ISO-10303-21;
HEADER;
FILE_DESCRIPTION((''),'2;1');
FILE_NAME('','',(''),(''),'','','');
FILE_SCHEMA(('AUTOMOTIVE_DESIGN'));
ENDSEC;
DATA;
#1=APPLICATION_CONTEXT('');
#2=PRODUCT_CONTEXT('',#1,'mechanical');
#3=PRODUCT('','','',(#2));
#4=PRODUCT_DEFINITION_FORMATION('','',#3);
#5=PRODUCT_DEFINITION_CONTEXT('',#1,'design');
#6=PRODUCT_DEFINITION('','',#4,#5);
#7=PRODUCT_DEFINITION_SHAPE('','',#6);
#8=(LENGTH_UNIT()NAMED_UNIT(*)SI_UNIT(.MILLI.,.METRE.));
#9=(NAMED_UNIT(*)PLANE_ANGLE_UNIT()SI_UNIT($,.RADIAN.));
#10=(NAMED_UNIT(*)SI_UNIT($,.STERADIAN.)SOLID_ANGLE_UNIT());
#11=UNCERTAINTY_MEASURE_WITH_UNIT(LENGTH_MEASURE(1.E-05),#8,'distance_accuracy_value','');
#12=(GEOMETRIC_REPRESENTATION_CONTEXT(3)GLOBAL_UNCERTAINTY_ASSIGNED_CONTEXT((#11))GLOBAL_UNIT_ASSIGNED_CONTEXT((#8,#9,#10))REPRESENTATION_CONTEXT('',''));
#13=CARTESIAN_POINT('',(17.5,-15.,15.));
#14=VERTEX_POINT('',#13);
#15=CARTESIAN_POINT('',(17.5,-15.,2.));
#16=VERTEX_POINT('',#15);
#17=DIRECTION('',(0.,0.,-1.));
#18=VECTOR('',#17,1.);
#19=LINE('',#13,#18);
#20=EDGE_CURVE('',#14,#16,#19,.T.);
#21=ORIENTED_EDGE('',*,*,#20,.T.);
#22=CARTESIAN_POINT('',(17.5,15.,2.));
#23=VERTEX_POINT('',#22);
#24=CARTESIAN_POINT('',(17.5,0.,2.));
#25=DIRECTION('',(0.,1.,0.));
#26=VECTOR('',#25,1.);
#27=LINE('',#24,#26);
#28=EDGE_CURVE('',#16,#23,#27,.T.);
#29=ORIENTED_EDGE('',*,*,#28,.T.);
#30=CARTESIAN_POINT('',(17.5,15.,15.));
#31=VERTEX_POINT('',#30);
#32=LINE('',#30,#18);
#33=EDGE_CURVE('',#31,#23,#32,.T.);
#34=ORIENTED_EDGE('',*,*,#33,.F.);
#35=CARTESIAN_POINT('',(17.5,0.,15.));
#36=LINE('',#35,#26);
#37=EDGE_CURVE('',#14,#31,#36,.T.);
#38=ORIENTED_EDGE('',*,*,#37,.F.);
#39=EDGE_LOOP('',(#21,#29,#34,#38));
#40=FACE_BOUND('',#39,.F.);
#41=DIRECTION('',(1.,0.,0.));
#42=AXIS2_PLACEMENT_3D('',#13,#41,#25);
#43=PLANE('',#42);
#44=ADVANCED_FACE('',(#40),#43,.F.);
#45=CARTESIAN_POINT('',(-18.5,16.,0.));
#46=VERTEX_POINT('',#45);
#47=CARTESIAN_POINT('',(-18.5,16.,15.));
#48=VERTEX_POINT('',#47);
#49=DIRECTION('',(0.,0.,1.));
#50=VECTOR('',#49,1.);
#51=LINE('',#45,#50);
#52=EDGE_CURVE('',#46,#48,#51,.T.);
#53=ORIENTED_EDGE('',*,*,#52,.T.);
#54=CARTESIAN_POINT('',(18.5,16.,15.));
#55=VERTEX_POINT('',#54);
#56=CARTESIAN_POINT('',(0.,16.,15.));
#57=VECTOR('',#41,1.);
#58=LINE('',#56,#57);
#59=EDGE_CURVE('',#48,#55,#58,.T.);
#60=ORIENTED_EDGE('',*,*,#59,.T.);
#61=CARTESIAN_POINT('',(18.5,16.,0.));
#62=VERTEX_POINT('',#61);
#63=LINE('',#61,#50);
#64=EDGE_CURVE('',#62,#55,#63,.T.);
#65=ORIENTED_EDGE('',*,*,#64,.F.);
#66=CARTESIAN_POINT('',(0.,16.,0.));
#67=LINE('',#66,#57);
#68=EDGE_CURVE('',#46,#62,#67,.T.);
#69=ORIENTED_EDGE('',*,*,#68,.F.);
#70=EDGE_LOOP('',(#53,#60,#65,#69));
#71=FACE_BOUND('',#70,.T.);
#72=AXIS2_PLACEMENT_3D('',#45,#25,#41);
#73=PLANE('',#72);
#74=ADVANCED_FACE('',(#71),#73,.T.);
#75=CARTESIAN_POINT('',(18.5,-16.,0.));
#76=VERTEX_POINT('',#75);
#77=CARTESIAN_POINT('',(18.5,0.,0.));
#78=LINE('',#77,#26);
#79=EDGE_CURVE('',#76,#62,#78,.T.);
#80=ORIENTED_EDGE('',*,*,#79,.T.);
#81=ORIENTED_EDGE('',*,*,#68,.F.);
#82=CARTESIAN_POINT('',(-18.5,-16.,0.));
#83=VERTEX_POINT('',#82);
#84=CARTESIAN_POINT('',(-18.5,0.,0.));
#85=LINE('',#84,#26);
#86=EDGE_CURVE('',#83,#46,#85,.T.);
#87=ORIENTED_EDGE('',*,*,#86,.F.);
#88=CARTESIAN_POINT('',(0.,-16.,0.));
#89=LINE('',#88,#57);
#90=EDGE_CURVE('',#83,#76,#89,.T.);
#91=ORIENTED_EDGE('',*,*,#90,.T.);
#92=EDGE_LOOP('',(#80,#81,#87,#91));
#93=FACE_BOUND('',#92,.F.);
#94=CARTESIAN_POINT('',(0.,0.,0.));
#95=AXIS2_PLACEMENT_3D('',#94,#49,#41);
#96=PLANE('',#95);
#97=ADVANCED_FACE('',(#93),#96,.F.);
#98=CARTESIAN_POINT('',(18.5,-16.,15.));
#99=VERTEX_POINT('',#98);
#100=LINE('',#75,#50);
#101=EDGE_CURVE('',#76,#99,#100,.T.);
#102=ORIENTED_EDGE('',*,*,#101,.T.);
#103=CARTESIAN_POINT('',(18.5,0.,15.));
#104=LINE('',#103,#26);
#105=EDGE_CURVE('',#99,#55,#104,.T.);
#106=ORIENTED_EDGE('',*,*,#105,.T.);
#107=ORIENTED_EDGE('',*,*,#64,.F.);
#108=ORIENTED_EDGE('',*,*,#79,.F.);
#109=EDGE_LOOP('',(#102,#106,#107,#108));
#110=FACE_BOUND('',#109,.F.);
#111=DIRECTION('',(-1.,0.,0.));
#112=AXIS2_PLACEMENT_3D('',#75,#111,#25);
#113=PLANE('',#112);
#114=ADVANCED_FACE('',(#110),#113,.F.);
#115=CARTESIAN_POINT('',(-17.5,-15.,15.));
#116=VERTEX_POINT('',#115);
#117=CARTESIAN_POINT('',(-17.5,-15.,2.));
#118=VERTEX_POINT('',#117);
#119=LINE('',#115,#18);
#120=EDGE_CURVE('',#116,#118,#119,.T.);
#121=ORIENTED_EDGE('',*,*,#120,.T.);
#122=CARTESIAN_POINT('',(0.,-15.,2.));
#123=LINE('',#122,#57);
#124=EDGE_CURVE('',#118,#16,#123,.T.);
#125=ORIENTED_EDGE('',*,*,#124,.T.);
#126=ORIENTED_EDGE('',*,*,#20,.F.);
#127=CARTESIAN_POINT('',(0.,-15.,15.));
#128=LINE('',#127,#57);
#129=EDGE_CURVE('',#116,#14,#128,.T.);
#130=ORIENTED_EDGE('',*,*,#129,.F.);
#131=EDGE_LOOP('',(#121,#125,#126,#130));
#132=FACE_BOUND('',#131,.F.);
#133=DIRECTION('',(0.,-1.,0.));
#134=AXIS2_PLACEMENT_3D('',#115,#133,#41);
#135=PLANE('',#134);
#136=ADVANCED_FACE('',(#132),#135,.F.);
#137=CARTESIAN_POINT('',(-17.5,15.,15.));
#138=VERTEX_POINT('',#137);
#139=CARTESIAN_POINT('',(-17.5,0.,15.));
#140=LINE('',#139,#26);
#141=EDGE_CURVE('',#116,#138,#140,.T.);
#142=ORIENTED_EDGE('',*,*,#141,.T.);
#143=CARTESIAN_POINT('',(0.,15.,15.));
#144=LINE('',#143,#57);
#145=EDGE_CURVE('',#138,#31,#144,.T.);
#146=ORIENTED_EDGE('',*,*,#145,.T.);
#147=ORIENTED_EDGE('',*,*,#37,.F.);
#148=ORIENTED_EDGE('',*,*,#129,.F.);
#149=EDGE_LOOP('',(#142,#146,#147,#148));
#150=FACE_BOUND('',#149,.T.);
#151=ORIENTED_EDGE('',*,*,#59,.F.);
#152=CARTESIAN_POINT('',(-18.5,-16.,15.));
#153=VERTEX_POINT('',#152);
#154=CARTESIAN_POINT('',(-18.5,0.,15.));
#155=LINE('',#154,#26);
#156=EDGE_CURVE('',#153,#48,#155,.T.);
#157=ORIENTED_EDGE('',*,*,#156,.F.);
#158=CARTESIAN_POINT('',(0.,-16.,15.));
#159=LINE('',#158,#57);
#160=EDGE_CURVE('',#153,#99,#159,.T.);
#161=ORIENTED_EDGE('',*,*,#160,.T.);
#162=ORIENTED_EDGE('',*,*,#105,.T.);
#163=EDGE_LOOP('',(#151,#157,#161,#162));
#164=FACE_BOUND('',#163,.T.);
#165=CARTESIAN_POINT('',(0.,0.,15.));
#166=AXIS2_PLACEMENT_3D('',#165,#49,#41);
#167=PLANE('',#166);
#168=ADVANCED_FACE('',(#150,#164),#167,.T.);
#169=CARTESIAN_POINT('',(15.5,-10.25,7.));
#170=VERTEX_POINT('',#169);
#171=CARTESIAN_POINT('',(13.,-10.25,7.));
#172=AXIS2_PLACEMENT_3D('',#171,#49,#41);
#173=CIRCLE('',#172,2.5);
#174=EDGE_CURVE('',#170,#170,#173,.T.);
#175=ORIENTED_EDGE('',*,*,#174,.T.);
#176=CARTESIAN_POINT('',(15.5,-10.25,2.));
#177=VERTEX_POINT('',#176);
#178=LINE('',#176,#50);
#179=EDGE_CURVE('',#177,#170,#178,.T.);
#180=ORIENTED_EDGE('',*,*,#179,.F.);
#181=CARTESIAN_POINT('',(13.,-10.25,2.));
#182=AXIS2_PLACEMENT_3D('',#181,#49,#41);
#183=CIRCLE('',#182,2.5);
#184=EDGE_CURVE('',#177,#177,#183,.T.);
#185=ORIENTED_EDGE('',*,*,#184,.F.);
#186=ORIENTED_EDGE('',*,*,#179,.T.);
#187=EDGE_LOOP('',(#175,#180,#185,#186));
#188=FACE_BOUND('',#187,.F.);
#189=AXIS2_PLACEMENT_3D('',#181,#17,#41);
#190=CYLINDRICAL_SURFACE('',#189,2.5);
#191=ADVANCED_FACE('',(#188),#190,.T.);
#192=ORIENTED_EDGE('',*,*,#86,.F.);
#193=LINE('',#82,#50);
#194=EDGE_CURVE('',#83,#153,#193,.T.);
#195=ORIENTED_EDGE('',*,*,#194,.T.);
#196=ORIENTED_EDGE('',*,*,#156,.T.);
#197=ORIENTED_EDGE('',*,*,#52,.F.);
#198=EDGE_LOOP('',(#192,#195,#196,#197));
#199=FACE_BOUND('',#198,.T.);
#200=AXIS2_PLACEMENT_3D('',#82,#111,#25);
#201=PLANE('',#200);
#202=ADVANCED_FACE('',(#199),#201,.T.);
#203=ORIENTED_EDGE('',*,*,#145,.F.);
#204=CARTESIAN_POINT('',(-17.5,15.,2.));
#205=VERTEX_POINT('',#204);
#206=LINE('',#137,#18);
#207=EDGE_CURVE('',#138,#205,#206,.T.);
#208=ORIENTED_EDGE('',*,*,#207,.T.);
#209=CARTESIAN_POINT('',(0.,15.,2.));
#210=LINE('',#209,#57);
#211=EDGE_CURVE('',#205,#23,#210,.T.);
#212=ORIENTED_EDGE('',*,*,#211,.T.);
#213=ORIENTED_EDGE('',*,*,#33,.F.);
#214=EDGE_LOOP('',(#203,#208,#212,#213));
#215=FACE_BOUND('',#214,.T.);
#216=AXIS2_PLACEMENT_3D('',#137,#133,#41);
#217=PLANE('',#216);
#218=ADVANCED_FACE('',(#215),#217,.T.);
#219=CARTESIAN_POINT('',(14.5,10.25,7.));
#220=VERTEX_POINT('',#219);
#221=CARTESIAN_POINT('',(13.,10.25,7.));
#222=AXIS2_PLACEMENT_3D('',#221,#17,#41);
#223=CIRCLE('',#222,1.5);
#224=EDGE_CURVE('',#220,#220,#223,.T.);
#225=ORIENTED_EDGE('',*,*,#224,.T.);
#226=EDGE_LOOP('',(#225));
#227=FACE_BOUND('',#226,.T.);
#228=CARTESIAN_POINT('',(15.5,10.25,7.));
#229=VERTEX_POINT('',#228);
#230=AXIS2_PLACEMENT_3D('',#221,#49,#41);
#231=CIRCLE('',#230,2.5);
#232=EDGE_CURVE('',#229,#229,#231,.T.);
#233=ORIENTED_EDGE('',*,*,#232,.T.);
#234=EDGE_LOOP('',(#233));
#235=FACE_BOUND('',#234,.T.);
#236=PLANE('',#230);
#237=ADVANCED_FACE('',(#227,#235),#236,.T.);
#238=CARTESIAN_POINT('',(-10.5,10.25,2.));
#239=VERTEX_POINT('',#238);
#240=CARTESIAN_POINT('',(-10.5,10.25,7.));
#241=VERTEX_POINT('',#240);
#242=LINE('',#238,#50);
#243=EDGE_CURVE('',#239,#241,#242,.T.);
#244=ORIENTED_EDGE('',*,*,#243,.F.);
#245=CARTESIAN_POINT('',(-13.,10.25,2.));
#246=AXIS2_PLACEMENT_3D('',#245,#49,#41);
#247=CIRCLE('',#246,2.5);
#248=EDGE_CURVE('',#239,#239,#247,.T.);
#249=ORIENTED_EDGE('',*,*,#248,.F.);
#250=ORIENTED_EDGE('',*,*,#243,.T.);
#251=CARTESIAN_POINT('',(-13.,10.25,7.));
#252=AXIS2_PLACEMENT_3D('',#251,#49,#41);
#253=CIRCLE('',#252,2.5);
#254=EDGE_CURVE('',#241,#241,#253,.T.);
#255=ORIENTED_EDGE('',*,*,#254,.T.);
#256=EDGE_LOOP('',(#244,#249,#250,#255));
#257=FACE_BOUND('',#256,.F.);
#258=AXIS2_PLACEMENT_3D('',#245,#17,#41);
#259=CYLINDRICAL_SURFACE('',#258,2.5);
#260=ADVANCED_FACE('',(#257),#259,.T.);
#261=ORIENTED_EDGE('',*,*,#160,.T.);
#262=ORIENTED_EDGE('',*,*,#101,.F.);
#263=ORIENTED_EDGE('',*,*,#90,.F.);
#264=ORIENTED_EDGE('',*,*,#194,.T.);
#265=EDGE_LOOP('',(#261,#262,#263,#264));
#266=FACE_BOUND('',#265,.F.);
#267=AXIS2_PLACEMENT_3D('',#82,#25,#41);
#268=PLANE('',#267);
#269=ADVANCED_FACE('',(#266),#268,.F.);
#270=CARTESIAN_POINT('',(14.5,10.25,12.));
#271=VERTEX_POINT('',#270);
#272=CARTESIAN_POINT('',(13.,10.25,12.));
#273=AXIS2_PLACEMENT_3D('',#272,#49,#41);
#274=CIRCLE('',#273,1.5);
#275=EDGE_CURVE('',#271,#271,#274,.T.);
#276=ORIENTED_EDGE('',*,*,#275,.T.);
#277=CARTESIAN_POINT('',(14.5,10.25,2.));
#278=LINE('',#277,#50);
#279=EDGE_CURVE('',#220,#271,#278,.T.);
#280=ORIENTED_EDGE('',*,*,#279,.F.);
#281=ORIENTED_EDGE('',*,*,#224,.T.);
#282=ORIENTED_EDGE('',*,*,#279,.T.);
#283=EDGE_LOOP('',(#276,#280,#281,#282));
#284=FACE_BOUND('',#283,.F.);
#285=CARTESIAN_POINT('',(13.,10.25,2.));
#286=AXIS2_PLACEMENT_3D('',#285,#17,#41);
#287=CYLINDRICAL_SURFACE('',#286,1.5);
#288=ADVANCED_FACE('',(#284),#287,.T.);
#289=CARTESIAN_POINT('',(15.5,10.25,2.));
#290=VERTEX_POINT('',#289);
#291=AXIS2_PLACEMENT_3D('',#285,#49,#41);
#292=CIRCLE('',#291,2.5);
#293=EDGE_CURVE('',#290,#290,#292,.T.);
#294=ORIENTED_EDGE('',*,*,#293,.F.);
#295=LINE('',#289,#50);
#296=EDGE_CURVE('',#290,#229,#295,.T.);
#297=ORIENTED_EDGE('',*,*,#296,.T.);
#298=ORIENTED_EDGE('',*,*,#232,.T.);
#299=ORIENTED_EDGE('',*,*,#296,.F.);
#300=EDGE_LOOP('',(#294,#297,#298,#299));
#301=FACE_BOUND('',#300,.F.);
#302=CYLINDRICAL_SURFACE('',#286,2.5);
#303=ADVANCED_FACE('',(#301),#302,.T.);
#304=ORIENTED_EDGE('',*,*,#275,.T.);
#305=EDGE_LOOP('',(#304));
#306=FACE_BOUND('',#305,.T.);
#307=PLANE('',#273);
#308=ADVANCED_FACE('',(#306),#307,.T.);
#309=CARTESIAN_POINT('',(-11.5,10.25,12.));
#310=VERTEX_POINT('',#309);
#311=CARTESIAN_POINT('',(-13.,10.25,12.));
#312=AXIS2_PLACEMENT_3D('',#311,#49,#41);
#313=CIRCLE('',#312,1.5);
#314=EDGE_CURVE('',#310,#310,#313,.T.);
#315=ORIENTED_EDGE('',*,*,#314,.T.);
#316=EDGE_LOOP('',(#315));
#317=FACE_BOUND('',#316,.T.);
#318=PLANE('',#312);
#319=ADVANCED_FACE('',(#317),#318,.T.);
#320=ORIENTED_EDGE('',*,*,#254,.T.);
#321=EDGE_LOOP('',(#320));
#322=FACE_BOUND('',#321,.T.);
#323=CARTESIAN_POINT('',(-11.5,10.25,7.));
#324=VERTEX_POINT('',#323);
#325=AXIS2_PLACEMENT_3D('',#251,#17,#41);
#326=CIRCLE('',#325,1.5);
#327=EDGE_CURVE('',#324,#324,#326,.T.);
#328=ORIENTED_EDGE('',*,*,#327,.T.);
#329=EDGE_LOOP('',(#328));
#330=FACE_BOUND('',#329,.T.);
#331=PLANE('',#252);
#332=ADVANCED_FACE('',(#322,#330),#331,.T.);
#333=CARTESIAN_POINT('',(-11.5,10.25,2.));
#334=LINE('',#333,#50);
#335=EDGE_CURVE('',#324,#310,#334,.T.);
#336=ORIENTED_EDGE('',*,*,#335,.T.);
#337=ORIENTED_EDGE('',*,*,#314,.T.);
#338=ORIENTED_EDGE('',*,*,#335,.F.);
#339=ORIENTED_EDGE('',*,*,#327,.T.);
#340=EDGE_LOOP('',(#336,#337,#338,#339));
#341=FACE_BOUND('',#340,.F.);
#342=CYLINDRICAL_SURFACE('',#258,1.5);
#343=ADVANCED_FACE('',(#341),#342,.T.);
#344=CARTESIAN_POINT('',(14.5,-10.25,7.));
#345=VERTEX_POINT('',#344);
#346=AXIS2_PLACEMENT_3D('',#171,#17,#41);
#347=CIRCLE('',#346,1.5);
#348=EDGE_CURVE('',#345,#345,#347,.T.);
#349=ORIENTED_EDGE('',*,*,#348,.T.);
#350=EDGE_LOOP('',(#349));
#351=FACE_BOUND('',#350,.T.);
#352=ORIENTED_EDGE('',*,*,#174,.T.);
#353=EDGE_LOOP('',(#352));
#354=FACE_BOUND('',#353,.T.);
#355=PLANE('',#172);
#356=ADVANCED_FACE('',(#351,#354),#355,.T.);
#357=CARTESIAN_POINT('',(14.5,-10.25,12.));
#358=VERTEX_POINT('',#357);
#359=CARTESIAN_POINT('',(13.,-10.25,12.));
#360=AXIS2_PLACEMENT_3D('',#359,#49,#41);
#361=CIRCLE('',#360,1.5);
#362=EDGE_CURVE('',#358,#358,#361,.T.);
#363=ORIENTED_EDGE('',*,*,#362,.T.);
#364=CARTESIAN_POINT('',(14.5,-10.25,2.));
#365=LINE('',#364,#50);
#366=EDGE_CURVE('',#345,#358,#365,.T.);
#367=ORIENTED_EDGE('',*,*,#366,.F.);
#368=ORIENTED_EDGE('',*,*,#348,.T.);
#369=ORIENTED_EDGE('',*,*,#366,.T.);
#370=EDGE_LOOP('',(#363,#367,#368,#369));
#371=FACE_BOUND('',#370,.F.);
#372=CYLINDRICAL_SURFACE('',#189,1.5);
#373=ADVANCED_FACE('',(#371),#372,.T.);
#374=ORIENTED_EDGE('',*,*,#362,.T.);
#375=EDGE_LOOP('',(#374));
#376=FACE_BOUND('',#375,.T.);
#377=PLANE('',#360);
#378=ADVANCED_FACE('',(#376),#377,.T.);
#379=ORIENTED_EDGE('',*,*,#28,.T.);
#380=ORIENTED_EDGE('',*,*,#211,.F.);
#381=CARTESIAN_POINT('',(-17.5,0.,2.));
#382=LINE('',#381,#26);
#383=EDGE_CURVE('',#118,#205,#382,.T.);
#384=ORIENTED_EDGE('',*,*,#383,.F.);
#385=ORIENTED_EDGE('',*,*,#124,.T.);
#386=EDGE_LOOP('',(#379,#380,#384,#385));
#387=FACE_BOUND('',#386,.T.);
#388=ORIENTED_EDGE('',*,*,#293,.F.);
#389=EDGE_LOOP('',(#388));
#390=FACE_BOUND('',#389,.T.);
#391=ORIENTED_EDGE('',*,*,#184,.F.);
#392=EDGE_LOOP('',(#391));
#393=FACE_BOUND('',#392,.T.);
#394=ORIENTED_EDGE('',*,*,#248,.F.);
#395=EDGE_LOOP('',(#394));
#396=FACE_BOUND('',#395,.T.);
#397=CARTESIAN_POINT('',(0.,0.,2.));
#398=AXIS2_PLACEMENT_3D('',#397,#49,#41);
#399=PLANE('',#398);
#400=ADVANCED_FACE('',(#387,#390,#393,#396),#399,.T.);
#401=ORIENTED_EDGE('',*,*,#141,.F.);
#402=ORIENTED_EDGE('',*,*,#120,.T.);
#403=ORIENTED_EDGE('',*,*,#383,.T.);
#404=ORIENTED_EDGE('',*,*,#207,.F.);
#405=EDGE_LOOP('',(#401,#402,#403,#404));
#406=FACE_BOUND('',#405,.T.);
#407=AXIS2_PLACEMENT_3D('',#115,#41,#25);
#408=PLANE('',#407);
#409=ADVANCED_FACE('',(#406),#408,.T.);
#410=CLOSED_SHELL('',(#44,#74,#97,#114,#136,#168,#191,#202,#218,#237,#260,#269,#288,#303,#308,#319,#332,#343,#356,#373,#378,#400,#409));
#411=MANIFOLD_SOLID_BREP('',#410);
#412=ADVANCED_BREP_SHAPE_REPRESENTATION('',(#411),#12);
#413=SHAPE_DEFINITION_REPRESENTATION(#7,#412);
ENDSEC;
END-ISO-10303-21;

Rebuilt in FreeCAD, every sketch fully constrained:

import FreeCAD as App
import Part
import Sketcher

V = App.Vector
Q = App.Units.Quantity


def add_polygon(sketch, points):
    """Adds a closed chain of lines whose ends are joined by coincident constraints."""
    first, n = sketch.GeometryCount, len(points)
    for a, b in zip(points, points[1:] + points[:1]):
        sketch.addGeometry(Part.LineSegment(App.Vector(*a, 0), App.Vector(*b, 0)), False)
    for i in range(n):
        sketch.addConstraint(Sketcher.Constraint("Coincident", first + i, 2, first + (i + 1) % n, 1))

doc = App.newDocument("Part")
params = doc.addObject("Spreadsheet::Sheet", "Params")
for row, (alias, value) in enumerate([
    ("sketch1_width", "37 mm"),
    ("sketch1_height", "32 mm"),
    ("pad1_length", "15 mm"),
    ("sketch2_width", "35 mm"),
    ("sketch2_height", "30 mm"),
    ("pocket1_length", "13 mm"),
    ("sketch3_diameter", "5 mm"),
    ("pad2_length", "5 mm"),
    ("sketch4_diameter", "3 mm"),
    ("pad3_length", "10 mm"),
], start=1):
    params.set(f"A{row}", alias)
    params.set(f"B{row}", "=" + value)
    params.setAlias(f"B{row}", alias)

body = doc.addObject("PartDesign::Body", "Body")

# Sketch on XY plane
sketch1 = body.newObject("Sketcher::SketchObject", "Sketch")
sketch1.AttachmentSupport = (doc.getObject("XY_Plane"), [""])
sketch1.MapMode = "FlatFace"
add_polygon(sketch1, [(-18, 16), (-18, -16), (18, -16), (18, 16)])  # lines 0-3
sketch1.addConstraint([
    Sketcher.Constraint("Vertical", 0),
    Sketcher.Constraint("Horizontal", 1),
    Sketcher.Constraint("Vertical", 2),
    Sketcher.Constraint("Horizontal", 3),
    Sketcher.Constraint("Symmetric", 0, 2, 2, 2, -1, 1),
    Sketcher.Constraint("DistanceX", 1, 1, 1, 2, Q("37 mm")),
    Sketcher.Constraint("DistanceY", 0, 2, 0, 1, Q("32 mm")),
])
sketch1.setExpression("Constraints[9]", "Params.sketch1_width")
sketch1.setExpression("Constraints[10]", "Params.sketch1_height")
pad1 = body.newObject("PartDesign::Pad", "Pad")
pad1.Profile = sketch1
pad1.setExpression("Length", "Params.pad1_length")

# Sketch on XY plane
sketch2 = body.newObject("Sketcher::SketchObject", "Sketch001")
sketch2.AttachmentSupport = (doc.getObject("XY_Plane"), [""])
sketch2.MapMode = "FlatFace"
sketch2.AttachmentOffset = App.Placement(V(0, 0, 15), App.Rotation())
add_polygon(sketch2, [(-18, 15), (-18, -15), (18, -15), (18, 15)])  # lines 0-3
sketch2.addConstraint([
    Sketcher.Constraint("Vertical", 0),
    Sketcher.Constraint("Horizontal", 1),
    Sketcher.Constraint("Vertical", 2),
    Sketcher.Constraint("Horizontal", 3),
    Sketcher.Constraint("Symmetric", 0, 2, 2, 2, -1, 1),
    Sketcher.Constraint("DistanceX", 1, 1, 1, 2, Q("35 mm")),
    Sketcher.Constraint("DistanceY", 0, 2, 0, 1, Q("30 mm")),
])
sketch2.setExpression("Constraints[9]", "Params.sketch2_width")
sketch2.setExpression("Constraints[10]", "Params.sketch2_height")
pocket1 = body.newObject("PartDesign::Pocket", "Pocket")
pocket1.Profile = sketch2
pocket1.setExpression("Length", "Params.pocket1_length")

# Sketch on XY plane
sketch3 = body.newObject("Sketcher::SketchObject", "Sketch002")
sketch3.AttachmentSupport = (doc.getObject("XY_Plane"), [""])
sketch3.MapMode = "FlatFace"
sketch3.AttachmentOffset = App.Placement(V(0, 0, 2), App.Rotation())
sketch3.addGeometry([
    Part.Circle(V(-13, 10.2, 0), V(0, 0, 1), 2.5),
    Part.Circle(V(13, 10.2, 0), V(0, 0, 1), 2.5),
    Part.Circle(V(13, -10.2, 0), V(0, 0, 1), 2.5),
], False)
sketch3.addConstraint([
    Sketcher.Constraint("Equal", 0, 1),
    Sketcher.Constraint("Equal", 1, 2),
    Sketcher.Constraint("Symmetric", 0, 3, 2, 3, -1, 1),
    Sketcher.Constraint("Symmetric", 0, 3, 1, 3, -2),
    Sketcher.Constraint("Diameter", 0, Q("5 mm")),
    Sketcher.Constraint("DistanceX", 0, 3, -1, 1, Q("13 mm")),
    Sketcher.Constraint("DistanceY", 2, 3, 1, 3, Q("20.5 mm")),
])
sketch3.setExpression("Constraints[4]", "Params.sketch3_diameter")
pad2 = body.newObject("PartDesign::Pad", "Pad001")
pad2.Profile = sketch3
pad2.setExpression("Length", "Params.pad2_length")

# Sketch on XY plane
sketch4 = body.newObject("Sketcher::SketchObject", "Sketch003")
sketch4.AttachmentSupport = (doc.getObject("XY_Plane"), [""])
sketch4.MapMode = "FlatFace"
sketch4.AttachmentOffset = App.Placement(V(0, 0, 2), App.Rotation())
sketch4.addGeometry([
    Part.Circle(V(-13, 10.2, 0), V(0, 0, 1), 1.5),
    Part.Circle(V(13, 10.2, 0), V(0, 0, 1), 1.5),
    Part.Circle(V(13, -10.2, 0), V(0, 0, 1), 1.5),
], False)
sketch4.addConstraint([
    Sketcher.Constraint("Equal", 0, 1),
    Sketcher.Constraint("Equal", 1, 2),
    Sketcher.Constraint("Symmetric", 0, 3, 2, 3, -1, 1),
    Sketcher.Constraint("Symmetric", 0, 3, 1, 3, -2),
    Sketcher.Constraint("Diameter", 0, Q("3 mm")),
    Sketcher.Constraint("DistanceX", 0, 3, -1, 1, Q("13 mm")),
    Sketcher.Constraint("DistanceY", 2, 3, 1, 3, Q("20.5 mm")),
])
sketch4.setExpression("Constraints[4]", "Params.sketch4_diameter")
pad3 = body.newObject("PartDesign::Pad", "Pad002")
pad3.Profile = sketch4
pad3.setExpression("Length", "Params.pad3_length")

doc.recompute()
